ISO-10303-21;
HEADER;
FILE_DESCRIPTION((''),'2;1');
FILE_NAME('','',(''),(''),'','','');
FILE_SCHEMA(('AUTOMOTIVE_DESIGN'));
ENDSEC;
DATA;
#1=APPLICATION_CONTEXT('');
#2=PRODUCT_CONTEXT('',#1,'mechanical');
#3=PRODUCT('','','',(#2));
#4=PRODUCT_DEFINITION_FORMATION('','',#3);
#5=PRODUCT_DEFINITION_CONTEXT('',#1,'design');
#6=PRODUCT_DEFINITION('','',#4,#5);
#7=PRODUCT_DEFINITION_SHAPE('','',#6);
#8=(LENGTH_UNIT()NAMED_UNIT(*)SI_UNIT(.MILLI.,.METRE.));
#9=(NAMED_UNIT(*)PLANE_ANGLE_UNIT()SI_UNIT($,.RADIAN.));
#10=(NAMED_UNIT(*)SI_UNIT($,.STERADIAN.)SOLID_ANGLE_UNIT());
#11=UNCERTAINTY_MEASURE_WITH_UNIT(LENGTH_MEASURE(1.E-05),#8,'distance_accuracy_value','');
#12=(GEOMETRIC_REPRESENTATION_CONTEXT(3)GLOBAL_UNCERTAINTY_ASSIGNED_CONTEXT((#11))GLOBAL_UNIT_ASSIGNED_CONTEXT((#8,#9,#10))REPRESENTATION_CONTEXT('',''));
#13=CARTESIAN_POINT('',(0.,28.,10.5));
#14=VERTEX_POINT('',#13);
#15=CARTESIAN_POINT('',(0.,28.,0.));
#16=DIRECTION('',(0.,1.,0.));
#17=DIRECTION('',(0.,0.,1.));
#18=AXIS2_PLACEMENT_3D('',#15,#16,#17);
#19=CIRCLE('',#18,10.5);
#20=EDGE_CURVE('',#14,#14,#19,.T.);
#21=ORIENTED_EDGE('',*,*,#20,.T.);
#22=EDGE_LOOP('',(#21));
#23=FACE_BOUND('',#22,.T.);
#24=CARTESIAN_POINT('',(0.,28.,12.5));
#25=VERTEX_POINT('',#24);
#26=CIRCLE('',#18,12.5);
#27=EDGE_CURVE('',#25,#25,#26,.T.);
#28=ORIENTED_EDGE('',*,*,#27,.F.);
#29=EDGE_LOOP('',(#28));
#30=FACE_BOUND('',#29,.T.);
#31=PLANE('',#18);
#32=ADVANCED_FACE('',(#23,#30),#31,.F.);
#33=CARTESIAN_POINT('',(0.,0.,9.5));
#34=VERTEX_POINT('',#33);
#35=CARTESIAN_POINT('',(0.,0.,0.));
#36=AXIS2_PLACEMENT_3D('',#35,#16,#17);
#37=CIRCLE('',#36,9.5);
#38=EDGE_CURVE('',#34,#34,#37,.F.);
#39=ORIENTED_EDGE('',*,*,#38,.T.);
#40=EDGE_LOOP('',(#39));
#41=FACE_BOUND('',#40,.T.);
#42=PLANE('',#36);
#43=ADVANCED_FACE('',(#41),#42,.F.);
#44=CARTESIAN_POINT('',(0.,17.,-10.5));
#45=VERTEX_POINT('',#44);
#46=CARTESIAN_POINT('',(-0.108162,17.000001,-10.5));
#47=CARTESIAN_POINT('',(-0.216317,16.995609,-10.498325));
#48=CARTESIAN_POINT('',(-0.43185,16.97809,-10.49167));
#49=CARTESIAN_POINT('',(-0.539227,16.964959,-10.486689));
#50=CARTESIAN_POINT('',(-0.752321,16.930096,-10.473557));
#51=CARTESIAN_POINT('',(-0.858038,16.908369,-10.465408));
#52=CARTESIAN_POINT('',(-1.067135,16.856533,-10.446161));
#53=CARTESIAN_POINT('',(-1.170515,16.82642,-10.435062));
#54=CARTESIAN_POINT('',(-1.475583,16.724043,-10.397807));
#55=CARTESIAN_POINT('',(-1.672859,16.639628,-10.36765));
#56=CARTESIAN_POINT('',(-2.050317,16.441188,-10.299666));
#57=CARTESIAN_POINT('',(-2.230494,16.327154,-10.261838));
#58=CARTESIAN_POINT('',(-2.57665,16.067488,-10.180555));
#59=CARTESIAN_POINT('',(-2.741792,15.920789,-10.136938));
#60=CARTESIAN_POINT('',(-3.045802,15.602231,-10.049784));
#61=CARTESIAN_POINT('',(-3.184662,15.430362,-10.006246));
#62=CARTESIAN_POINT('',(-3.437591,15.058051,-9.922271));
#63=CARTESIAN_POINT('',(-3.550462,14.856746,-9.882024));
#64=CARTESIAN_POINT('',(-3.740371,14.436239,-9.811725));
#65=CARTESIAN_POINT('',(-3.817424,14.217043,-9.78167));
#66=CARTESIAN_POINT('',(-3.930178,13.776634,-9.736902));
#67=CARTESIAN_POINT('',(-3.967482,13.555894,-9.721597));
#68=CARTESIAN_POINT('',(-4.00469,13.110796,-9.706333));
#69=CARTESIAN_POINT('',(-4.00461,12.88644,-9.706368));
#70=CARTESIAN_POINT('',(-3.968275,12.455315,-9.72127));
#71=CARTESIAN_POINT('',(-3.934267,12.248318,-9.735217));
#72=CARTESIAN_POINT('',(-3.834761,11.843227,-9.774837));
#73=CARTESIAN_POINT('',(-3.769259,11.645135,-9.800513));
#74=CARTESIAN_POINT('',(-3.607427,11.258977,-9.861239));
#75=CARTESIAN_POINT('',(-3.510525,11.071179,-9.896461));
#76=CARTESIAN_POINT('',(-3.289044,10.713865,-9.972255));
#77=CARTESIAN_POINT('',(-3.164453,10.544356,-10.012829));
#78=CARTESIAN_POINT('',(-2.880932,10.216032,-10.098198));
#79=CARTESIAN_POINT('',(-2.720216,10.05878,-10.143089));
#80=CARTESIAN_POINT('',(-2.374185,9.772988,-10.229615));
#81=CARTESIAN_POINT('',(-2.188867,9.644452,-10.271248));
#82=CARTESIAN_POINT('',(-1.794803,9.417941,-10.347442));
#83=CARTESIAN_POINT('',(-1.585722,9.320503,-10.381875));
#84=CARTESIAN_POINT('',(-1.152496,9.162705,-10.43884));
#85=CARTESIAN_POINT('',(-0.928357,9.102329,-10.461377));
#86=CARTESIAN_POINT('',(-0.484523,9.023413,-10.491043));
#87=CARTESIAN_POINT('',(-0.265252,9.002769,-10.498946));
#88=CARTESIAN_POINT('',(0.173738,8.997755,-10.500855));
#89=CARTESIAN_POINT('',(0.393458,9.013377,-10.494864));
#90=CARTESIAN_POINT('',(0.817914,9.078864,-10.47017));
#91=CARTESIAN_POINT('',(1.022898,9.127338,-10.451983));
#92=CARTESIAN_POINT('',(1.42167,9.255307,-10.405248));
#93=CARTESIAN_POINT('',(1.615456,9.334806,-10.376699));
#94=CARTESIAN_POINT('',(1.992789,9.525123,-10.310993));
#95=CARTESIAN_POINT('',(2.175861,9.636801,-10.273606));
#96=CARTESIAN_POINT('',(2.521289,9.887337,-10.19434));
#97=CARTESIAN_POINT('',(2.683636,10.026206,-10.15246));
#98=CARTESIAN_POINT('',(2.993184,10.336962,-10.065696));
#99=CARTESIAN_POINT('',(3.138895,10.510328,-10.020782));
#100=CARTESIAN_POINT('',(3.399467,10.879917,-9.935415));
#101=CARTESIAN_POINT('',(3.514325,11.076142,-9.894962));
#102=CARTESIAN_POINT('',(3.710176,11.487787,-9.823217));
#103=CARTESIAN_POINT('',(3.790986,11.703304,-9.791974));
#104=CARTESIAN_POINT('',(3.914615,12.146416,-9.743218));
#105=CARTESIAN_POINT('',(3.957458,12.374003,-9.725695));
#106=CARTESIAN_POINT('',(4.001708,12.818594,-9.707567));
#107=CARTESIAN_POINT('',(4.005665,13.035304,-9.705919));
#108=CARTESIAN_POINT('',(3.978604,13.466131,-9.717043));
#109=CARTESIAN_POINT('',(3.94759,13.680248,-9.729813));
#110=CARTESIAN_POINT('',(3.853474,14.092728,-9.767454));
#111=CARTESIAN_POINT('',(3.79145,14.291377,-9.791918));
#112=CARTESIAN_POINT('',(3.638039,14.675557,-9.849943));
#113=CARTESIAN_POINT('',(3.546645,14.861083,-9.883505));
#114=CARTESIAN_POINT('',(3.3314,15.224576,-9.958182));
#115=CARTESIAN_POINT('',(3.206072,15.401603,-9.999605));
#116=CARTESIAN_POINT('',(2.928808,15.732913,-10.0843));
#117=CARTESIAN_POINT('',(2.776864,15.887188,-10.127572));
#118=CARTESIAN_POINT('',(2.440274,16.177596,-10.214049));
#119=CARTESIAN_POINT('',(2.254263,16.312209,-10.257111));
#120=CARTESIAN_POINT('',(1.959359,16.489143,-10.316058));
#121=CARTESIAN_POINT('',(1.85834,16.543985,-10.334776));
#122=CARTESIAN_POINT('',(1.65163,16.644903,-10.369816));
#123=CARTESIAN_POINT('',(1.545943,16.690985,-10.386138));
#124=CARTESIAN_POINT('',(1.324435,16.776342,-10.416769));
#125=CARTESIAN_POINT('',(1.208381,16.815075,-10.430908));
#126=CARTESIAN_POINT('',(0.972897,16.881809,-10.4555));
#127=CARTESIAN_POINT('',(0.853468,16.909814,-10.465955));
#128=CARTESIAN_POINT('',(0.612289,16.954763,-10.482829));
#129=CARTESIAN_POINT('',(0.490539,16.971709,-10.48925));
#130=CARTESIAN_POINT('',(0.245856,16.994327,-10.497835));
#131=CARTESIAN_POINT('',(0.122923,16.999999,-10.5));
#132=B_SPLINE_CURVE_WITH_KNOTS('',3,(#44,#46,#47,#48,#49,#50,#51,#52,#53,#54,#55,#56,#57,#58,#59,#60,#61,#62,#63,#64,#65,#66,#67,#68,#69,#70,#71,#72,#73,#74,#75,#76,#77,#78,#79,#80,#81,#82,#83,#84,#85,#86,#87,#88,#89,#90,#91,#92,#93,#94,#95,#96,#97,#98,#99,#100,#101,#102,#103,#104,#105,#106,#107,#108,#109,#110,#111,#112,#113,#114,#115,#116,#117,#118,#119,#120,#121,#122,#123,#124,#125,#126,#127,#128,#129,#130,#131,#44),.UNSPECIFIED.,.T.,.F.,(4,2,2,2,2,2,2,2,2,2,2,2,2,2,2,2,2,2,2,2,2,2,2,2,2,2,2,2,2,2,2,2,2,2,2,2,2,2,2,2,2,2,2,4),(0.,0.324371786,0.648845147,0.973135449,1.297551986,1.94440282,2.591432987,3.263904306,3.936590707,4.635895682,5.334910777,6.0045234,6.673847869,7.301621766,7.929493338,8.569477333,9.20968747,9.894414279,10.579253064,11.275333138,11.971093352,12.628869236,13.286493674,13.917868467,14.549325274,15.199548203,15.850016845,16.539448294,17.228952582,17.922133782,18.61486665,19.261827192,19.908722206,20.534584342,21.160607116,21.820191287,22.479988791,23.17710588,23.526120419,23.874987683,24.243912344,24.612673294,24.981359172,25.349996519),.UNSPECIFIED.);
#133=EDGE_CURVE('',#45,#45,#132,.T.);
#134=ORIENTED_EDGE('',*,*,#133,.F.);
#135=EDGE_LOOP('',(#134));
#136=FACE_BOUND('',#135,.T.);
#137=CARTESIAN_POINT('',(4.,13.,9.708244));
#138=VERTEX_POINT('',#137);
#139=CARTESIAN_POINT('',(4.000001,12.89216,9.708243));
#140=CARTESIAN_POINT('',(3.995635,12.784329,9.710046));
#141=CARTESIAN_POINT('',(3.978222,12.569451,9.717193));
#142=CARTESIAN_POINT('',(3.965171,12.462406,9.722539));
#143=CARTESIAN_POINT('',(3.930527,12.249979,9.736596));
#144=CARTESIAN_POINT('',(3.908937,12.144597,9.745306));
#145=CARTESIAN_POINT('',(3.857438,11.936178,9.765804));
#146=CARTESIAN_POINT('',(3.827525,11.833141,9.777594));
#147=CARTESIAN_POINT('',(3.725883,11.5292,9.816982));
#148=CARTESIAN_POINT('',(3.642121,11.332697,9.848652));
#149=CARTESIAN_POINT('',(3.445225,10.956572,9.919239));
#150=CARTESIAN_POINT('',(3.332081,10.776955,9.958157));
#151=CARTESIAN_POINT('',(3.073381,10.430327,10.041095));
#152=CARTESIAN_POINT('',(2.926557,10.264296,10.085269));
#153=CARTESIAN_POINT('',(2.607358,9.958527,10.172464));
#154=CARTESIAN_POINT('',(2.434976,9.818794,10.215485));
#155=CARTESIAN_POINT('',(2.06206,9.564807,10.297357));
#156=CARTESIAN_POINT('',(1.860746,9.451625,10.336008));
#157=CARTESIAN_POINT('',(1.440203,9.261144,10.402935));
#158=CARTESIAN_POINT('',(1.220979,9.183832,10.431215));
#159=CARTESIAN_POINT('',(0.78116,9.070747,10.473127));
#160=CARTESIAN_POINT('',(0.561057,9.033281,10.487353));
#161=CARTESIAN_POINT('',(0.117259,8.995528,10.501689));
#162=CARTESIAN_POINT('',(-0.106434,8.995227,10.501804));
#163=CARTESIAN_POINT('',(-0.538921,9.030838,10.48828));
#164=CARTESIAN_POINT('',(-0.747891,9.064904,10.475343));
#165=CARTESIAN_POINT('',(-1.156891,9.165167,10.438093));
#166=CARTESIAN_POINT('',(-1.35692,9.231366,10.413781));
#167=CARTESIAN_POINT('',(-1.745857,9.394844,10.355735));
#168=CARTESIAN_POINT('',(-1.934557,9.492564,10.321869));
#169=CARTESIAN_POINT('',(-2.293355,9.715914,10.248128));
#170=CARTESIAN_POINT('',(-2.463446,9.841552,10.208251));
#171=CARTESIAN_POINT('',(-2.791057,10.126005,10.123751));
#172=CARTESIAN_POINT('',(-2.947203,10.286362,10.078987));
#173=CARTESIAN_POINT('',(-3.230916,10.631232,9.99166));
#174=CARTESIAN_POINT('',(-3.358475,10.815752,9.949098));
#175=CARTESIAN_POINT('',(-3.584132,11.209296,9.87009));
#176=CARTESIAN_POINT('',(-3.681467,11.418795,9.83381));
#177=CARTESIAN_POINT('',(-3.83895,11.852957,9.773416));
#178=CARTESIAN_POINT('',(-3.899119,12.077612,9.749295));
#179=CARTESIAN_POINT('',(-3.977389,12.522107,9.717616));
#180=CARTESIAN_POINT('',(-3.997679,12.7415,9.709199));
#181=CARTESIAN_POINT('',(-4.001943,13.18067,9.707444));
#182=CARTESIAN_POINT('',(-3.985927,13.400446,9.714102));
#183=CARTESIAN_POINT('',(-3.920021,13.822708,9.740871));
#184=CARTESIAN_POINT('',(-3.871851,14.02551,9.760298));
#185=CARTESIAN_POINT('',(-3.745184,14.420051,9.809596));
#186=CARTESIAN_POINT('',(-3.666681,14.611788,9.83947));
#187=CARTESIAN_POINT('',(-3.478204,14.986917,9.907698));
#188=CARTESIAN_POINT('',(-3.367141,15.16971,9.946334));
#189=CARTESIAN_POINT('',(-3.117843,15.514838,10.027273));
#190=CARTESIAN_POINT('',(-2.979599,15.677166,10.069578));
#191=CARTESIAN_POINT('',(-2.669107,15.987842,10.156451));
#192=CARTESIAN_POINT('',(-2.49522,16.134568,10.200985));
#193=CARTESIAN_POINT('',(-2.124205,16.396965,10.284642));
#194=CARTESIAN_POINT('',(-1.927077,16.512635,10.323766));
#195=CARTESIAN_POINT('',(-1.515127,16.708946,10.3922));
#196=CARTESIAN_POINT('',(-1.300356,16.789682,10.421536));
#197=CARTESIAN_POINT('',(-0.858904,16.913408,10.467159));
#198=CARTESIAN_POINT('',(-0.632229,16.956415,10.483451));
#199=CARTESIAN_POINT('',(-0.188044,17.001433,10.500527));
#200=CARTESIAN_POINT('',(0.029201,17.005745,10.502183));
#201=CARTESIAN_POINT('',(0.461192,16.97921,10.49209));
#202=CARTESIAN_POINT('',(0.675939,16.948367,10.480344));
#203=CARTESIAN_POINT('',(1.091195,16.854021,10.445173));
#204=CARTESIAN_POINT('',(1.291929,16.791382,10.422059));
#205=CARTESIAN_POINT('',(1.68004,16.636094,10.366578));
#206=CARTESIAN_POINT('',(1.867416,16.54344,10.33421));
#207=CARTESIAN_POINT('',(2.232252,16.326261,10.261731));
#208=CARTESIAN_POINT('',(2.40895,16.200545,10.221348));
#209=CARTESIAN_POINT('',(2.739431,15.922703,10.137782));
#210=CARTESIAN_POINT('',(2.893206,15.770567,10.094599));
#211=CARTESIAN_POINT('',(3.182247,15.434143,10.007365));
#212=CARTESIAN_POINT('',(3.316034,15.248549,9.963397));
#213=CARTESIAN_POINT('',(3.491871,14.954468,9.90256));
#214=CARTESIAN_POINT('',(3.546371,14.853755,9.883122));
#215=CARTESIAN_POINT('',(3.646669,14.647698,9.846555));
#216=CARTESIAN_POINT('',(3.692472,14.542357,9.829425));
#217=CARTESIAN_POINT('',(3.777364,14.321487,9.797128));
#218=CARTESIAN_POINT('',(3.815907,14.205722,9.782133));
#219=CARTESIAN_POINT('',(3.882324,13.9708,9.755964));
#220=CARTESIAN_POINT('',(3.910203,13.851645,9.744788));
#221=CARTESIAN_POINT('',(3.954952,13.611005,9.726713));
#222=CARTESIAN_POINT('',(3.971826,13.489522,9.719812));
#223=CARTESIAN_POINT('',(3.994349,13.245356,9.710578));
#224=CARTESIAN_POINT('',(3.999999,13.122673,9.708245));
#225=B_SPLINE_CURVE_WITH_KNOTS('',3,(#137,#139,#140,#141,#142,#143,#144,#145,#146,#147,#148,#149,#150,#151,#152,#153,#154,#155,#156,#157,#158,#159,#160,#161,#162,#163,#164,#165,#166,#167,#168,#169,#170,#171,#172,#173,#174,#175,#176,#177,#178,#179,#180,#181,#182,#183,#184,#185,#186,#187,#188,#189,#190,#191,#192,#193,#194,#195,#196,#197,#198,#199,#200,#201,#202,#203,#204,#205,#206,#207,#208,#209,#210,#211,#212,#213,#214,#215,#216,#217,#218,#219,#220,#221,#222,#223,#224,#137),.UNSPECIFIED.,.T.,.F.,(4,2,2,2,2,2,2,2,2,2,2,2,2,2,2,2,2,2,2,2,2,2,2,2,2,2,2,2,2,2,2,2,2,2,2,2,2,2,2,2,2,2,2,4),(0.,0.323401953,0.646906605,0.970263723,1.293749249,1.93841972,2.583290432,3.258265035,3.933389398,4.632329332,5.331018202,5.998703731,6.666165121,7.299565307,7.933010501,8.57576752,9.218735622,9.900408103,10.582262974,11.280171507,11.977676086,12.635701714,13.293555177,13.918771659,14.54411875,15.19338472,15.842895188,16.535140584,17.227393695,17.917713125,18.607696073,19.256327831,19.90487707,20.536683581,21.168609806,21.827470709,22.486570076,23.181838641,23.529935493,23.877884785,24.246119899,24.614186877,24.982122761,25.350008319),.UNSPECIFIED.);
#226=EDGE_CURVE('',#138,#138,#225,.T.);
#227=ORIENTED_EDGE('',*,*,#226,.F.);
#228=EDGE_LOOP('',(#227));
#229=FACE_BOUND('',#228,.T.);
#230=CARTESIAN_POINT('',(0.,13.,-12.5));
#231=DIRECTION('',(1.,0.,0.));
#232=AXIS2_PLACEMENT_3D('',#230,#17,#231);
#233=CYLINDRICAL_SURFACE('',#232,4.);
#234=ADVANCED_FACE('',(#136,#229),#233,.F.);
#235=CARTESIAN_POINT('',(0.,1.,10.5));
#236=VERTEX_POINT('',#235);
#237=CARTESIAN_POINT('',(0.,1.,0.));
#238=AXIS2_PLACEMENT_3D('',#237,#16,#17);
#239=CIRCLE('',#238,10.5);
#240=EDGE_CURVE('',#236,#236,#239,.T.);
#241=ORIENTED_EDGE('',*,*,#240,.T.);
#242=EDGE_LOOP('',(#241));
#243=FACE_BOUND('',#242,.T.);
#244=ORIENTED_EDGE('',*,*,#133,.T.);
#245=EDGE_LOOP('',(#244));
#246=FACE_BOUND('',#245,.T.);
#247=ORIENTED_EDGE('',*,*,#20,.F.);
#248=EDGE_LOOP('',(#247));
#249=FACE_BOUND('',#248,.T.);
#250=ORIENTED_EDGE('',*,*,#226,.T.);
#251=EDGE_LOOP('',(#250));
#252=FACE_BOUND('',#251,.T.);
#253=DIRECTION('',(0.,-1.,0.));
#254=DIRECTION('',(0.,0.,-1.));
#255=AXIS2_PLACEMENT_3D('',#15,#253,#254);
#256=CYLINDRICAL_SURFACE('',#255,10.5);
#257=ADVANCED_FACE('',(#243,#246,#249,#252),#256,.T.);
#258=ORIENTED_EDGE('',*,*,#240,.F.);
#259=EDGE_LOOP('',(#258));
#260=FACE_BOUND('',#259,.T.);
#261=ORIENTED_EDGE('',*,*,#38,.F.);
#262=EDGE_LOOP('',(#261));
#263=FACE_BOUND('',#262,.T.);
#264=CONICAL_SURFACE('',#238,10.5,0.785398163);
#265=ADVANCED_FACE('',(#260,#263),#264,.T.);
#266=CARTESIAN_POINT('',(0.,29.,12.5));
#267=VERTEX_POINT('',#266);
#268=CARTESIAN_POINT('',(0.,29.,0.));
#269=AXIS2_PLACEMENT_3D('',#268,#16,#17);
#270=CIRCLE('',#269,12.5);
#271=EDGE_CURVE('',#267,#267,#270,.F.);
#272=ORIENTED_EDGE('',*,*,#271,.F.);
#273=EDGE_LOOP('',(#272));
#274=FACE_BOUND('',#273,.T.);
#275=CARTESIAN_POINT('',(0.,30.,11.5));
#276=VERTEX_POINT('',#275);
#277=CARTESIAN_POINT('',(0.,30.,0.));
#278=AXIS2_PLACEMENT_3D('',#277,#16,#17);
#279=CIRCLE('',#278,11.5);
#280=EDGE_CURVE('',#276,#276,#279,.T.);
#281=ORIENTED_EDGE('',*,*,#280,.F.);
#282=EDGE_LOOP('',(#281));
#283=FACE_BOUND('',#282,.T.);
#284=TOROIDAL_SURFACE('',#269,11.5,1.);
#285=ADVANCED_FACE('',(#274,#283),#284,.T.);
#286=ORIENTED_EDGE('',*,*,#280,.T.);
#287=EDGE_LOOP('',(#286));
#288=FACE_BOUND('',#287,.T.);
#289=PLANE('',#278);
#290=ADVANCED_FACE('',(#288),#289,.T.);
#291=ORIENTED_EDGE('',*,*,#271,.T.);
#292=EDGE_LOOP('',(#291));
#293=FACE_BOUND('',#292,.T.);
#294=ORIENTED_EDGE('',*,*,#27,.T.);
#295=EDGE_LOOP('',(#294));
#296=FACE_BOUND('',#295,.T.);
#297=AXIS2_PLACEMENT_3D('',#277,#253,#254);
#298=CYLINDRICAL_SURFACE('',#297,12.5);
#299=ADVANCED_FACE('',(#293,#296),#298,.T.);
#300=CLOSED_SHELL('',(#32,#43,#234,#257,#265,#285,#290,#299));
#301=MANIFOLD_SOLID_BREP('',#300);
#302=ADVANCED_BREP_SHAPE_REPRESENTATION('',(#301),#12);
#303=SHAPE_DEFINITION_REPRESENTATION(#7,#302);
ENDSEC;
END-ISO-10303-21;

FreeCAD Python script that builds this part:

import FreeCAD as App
import Part
import Sketcher

V = App.Vector


def edges_at(feature, points):
    """Names of the edges that pass closest to the given points."""
    edges = feature.Shape.Edges
    near = lambda p: min(range(len(edges)), key=lambda i: edges[i].distToShape(Part.Vertex(*p))[0])
    return sorted({f"Edge{near(p) + 1}" for p in points})

doc = App.newDocument("Part")
params = doc.addObject("Spreadsheet::Sheet", "Params")
for row, (alias, value) in enumerate([
    ("sketch1_diameter", "21 mm"),
    ("pad1_length", "28 mm"),
    ("sketch2_diameter", "25 mm"),
    ("pad2_length", "2 mm"),
    ("fillet_radius", "1 mm"),
    ("chamfer_size", "1 mm"),
    ("sketch3_diameter", "8 mm"),
], start=1):
    params.set(f"A{row}", alias)
    params.set(f"B{row}", "=" + value)
    params.setAlias(f"B{row}", alias)

body = doc.addObject("PartDesign::Body", "Body")

sketch1 = body.newObject("Sketcher::SketchObject", "Sketch")
sketch1.AttachmentSupport = (doc.getObject("XZ_Plane"), [""])
sketch1.MapMode = "FlatFace"
sketch1.addGeometry(Part.Circle(V(0, 0, 0), V(0, 0, 1), 10), False)
sketch1.addConstraint([
    Sketcher.Constraint("Coincident", 0, 3, -1, 1),
    Sketcher.Constraint("Diameter", 0, 21.0),
])
sketch1.setExpression("Constraints[1]", "Params.sketch1_diameter")
pad1 = body.newObject("PartDesign::Pad", "Pad")
pad1.Profile = sketch1
pad1.setExpression("Length", "Params.pad1_length")
pad1.Reversed = True

sketch2 = body.newObject("Sketcher::SketchObject", "Sketch001")
sketch2.AttachmentSupport = (doc.getObject("XZ_Plane"), [""])
sketch2.MapMode = "FlatFace"
sketch2.AttachmentOffset = App.Placement(V(0, 0, -28), App.Rotation())
sketch2.addGeometry(Part.Circle(V(0, 0, 0), V(0, 0, 1), 12), False)
sketch2.addConstraint([
    Sketcher.Constraint("Coincident", 0, 3, -1, 1),
    Sketcher.Constraint("Diameter", 0, 25.0),
])
sketch2.setExpression("Constraints[1]", "Params.sketch2_diameter")
pad2 = body.newObject("PartDesign::Pad", "Pad001")
pad2.Profile = sketch2
pad2.setExpression("Length", "Params.pad2_length")
pad2.Reversed = True
doc.recompute()

fillet = body.newObject("PartDesign::Fillet", "Fillet")
fillet.Base = (pad2, edges_at(pad2, [(0, 30, -12.5)]))
fillet.setExpression("Radius", "Params.fillet_radius")
doc.recompute()

chamfer = body.newObject("PartDesign::Chamfer", "Chamfer")
chamfer.Base = (fillet, edges_at(fillet, [(0, 0, -10.5)]))
chamfer.setExpression("Size", "Params.chamfer_size")

sketch3 = body.newObject("Sketcher::SketchObject", "Sketch002")
sketch3.AttachmentSupport = (doc.getObject("XY_Plane"), [""])
sketch3.MapMode = "FlatFace"
sketch3.addGeometry(Part.Circle(V(0, 13, 0), V(0, 0, 1), 4), False)
sketch3.addConstraint([
    Sketcher.Constraint("PointOnObject", 0, 3, -2),
    Sketcher.Constraint("Diameter", 0, 8.0),
    Sketcher.Constraint("DistanceY", -1, 1, 0, 3, 13.0),
])
sketch3.setExpression("Constraints[1]", "Params.sketch3_diameter")
pocket1 = body.newObject("PartDesign::Pocket", "Pocket")
pocket1.Profile = sketch3
pocket1.Type = "ThroughAll"
pocket1.Midplane = True

doc.recompute()
